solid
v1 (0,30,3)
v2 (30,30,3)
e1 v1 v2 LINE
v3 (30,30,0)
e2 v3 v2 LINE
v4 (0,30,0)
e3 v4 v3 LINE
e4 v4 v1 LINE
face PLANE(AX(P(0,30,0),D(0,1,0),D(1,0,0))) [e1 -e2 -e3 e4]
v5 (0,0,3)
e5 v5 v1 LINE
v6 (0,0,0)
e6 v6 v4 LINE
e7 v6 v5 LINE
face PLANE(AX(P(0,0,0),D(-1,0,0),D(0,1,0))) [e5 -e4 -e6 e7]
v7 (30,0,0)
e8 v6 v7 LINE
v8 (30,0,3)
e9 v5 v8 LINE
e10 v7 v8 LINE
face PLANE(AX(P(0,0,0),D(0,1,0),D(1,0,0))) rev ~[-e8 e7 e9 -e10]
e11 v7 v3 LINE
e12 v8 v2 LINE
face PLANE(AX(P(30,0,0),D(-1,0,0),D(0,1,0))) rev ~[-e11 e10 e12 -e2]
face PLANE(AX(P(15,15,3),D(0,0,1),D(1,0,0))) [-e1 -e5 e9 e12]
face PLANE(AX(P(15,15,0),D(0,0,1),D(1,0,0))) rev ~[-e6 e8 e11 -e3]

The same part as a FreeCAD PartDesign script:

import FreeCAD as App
import Part
import Sketcher
Q = App.Units.Quantity

doc = App.newDocument("Part")
body = doc.addObject("PartDesign::Body", "Body")

sketch1 = body.newObject("Sketcher::SketchObject", "Sketch")
sketch1.AttachmentSupport = (doc.getObject("XY_Plane"), [""])
sketch1.MapMode = "FlatFace"
sketch1.addGeometry([
    Part.LineSegment(App.Vector(0, 30, 0), App.Vector(0, 0, 0)),
    Part.LineSegment(App.Vector(0, 0, 0), App.Vector(30, 0, 0)),
    Part.LineSegment(App.Vector(30, 0, 0), App.Vector(30, 30, 0)),
    Part.LineSegment(App.Vector(30, 30, 0), App.Vector(0, 30, 0)),
], False)
sketch1.addConstraint([
    Sketcher.Constraint("Coincident", 0, 2, 1, 1),
    Sketcher.Constraint("Coincident", 1, 2, 2, 1),
    Sketcher.Constraint("Coincident", 2, 2, 3, 1),
    Sketcher.Constraint("Coincident", 3, 2, 0, 1),
    Sketcher.Constraint("Vertical", 0),
    Sketcher.Constraint("Horizontal", 1),
    Sketcher.Constraint("Vertical", 2),
    Sketcher.Constraint("Horizontal", 3),
    Sketcher.Constraint("Coincident", 0, 2, -1, 1),
    Sketcher.Constraint("Equal", 3, 0),
    Sketcher.Constraint("DistanceX", 1, 1, 1, 2, Q("30 mm")),
])
pad1 = body.newObject("PartDesign::Pad", "Pad")
pad1.Profile = sketch1
pad1.Length = 3

doc.recompute()
